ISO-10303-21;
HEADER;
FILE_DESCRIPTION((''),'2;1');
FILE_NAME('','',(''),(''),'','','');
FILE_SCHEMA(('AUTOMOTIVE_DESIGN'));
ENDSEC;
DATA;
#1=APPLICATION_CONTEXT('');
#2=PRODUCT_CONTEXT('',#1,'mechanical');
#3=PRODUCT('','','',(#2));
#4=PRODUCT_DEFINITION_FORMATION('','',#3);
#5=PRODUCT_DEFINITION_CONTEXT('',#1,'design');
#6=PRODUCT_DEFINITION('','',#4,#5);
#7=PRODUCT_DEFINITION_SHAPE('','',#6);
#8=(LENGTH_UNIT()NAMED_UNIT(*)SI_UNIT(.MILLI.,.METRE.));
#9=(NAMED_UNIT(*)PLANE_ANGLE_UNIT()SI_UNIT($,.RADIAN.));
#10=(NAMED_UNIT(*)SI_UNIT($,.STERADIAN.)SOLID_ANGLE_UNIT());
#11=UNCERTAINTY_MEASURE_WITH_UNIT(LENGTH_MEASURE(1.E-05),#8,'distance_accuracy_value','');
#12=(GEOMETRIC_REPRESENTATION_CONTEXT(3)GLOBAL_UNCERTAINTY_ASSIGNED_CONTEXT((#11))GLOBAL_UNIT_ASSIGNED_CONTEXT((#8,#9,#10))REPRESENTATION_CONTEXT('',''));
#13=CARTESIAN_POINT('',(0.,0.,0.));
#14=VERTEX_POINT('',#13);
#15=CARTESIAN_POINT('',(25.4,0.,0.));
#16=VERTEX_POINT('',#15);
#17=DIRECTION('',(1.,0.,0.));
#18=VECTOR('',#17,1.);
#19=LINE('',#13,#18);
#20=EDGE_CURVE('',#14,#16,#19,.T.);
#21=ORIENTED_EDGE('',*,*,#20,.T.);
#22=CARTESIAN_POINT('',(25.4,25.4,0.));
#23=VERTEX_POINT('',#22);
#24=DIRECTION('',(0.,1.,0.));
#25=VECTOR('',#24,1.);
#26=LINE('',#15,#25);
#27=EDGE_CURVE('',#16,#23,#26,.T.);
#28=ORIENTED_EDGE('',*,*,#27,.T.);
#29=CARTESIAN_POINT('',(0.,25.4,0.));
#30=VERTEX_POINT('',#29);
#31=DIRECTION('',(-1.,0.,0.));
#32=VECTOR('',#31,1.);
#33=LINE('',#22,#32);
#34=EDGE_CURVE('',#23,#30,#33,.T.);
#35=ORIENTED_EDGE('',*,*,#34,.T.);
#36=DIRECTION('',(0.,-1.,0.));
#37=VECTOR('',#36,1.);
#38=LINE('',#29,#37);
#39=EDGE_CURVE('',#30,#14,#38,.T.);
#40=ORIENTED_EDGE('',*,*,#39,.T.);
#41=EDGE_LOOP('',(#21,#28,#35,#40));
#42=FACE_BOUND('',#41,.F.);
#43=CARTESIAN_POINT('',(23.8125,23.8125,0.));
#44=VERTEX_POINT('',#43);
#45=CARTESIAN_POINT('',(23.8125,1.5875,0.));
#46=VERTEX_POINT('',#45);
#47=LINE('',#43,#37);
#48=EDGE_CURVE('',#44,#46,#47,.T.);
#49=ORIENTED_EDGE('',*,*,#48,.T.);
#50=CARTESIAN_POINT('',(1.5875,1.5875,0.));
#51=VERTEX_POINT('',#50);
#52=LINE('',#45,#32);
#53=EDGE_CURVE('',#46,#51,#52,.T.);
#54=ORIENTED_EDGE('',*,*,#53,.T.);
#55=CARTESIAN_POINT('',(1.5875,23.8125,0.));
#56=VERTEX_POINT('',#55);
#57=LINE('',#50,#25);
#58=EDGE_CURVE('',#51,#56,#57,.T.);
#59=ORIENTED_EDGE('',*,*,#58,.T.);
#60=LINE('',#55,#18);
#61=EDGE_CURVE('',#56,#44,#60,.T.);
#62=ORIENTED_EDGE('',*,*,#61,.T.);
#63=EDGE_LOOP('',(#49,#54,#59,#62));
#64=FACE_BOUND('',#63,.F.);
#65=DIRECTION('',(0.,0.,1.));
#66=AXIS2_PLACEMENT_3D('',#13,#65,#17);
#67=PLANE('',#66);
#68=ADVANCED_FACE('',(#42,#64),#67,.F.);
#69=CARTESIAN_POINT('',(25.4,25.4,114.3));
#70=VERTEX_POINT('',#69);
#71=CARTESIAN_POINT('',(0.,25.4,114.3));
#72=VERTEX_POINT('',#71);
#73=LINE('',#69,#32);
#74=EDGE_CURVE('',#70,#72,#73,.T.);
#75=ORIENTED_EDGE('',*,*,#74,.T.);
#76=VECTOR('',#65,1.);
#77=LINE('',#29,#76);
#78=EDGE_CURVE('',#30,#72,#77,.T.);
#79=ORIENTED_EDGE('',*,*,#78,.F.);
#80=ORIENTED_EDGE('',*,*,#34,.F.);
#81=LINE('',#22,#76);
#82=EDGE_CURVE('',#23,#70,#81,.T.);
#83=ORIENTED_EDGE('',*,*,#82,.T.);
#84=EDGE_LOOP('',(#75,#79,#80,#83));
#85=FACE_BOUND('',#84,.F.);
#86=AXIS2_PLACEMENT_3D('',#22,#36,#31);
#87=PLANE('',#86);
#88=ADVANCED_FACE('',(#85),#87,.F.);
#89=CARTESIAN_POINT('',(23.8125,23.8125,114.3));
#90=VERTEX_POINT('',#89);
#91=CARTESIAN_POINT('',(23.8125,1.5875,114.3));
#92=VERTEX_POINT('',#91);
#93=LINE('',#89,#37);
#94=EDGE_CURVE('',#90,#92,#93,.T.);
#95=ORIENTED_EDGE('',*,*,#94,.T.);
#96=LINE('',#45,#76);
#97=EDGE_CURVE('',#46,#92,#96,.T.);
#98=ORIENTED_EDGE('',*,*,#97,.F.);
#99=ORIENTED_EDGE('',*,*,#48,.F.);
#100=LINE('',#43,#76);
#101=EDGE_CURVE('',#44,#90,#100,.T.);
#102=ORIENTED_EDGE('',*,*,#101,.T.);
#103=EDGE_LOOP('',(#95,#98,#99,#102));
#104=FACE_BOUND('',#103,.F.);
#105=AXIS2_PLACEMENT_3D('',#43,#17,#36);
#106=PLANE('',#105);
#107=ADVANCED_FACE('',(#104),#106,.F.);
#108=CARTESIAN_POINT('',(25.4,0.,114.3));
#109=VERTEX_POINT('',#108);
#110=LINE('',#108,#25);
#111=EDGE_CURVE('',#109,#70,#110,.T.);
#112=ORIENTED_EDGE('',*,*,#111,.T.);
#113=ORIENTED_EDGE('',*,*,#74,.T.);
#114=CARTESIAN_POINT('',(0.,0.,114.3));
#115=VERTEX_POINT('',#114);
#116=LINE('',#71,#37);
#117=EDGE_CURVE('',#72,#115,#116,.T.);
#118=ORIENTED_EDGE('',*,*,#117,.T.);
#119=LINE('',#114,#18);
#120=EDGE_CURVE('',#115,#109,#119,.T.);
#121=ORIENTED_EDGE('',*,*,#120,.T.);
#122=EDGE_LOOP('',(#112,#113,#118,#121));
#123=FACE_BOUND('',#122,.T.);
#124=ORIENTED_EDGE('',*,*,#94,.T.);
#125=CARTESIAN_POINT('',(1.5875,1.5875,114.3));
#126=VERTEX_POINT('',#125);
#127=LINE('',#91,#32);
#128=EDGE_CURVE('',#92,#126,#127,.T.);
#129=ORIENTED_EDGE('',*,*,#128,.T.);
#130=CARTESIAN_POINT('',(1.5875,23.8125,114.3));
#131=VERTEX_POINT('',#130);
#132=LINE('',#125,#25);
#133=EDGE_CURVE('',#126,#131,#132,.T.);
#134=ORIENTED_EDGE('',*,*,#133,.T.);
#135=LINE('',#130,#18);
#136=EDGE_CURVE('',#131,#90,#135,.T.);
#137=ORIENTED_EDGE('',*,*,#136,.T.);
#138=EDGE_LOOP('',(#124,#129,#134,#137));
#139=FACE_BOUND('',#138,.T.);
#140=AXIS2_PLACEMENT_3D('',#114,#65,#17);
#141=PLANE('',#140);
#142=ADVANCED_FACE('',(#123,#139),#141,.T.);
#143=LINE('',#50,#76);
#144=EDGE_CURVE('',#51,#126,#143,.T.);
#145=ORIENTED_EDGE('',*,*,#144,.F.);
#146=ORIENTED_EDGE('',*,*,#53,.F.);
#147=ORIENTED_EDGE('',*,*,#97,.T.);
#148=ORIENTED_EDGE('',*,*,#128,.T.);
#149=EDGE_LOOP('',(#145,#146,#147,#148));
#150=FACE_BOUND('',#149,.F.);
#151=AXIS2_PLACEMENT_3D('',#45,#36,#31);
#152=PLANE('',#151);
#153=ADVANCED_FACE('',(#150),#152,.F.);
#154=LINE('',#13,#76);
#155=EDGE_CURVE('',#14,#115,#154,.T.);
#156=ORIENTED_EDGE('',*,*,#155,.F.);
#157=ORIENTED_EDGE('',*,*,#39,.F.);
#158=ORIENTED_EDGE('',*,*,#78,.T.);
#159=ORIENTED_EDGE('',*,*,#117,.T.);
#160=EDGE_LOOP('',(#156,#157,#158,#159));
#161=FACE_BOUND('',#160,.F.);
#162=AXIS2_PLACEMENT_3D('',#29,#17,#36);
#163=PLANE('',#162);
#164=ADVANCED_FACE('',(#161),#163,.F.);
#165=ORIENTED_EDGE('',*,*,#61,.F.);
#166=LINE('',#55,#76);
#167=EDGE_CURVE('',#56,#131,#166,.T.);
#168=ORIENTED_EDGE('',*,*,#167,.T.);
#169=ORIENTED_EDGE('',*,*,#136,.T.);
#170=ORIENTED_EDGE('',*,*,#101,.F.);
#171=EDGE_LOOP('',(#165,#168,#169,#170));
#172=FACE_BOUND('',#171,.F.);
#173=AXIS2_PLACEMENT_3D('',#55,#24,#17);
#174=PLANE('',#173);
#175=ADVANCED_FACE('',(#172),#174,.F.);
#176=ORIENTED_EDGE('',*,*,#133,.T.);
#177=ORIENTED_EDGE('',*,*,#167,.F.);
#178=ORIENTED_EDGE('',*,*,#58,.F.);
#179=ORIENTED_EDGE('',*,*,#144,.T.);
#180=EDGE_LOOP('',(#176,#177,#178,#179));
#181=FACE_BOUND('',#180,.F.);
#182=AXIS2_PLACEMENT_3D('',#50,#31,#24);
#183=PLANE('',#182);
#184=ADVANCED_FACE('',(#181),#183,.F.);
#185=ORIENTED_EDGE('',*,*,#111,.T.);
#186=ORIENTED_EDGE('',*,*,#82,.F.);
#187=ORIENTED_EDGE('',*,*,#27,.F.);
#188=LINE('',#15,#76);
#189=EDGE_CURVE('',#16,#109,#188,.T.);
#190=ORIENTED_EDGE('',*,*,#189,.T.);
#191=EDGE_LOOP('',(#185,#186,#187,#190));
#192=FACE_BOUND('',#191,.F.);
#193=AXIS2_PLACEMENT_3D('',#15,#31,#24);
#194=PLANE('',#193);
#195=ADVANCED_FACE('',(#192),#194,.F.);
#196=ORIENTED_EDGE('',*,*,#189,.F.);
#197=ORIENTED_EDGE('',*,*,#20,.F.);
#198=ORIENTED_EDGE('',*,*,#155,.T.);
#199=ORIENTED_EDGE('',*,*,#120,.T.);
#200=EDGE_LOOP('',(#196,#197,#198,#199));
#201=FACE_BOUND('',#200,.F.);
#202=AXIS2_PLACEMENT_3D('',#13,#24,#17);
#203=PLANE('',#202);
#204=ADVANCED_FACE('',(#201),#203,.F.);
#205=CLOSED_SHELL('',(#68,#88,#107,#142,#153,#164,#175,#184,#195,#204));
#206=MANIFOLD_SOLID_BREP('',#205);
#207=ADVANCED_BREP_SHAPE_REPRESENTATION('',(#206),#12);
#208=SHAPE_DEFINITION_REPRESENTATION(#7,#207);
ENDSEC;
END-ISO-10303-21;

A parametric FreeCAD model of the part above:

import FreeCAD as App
import Part
import Sketcher
Q = App.Units.Quantity


def add_polygon(sketch, points):
    """Adds a closed chain of lines whose ends are joined by coincident constraints."""
    first, n = sketch.GeometryCount, len(points)
    for a, b in zip(points, points[1:] + points[:1]):
        sketch.addGeometry(Part.LineSegment(App.Vector(*a, 0), App.Vector(*b, 0)), False)
    for i in range(n):
        sketch.addConstraint(Sketcher.Constraint("Coincident", first + i, 2, first + (i + 1) % n, 1))

doc = App.newDocument("Part")
body = doc.addObject("PartDesign::Body", "Body")

sketch1 = body.newObject("Sketcher::SketchObject", "Sketch")
sketch1.AttachmentSupport = (doc.getObject("XY_Plane"), [""])
sketch1.MapMode = "FlatFace"
add_polygon(sketch1, [(0, 25), (0, 0), (25, 0), (25, 25)])
add_polygon(sketch1, [(2, 2), (2, 24), (24, 24), (24, 2)])
sketch1.addConstraint([
    Sketcher.Constraint("Vertical", 0),
    Sketcher.Constraint("Horizontal", 1),
    Sketcher.Constraint("Vertical", 2),
    Sketcher.Constraint("Horizontal", 3),
    Sketcher.Constraint("Vertical", 4),
    Sketcher.Constraint("Horizontal", 5),
    Sketcher.Constraint("Vertical", 6),
    Sketcher.Constraint("Horizontal", 7),
    Sketcher.Constraint("Coincident", 0, 2, -1, 1),
    Sketcher.Constraint("Equal", 3, 0),
    Sketcher.Constraint("Equal", 7, 4),
    Sketcher.Constraint("DistanceX", 1, 1, 1, 2, Q("1 in")),
    Sketcher.Constraint("DistanceX", -1, 1, 4, 2, Q("0.0625 in")),
    Sketcher.Constraint("DistanceY", -1, 1, 6, 2, Q("0.0625 in")),
    Sketcher.Constraint("DistanceY", 4, 2, 3, 2, Q("0.0625 in")),
])
pad1 = body.newObject("PartDesign::Pad", "Pad")
pad1.Profile = sketch1
pad1.Length = Q("4.5 in")

doc.recompute()
